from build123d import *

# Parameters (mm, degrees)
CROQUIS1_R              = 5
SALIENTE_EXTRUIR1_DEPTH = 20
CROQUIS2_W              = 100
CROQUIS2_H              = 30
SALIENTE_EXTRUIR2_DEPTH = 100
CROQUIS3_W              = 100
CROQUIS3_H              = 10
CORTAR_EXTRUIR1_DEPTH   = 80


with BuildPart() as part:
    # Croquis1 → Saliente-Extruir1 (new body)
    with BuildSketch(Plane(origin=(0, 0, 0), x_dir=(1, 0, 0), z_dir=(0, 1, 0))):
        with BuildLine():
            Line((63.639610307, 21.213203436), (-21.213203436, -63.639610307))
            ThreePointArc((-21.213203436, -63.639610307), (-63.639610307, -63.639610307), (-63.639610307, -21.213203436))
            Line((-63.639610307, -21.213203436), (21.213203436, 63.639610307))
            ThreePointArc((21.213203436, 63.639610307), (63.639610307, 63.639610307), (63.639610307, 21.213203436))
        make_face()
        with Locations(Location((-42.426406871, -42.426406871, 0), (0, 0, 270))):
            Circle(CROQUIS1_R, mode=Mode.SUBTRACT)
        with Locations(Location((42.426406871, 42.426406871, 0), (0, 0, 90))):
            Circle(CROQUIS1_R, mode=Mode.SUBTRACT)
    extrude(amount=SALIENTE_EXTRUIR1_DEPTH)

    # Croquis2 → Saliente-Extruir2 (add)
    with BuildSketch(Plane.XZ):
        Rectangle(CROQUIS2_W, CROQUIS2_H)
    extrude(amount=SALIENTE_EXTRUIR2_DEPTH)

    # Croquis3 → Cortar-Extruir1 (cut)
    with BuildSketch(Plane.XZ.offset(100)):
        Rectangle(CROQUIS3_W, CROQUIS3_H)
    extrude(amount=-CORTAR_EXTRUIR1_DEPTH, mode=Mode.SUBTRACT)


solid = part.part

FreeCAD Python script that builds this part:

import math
import FreeCAD as App
import Part
import Sketcher

V = App.Vector
Q = App.Units.Quantity

doc = App.newDocument("Part")
body = doc.addObject("PartDesign::Body", "Body")

# Sketch on XZ plane
sketch1 = body.newObject("Sketcher::SketchObject", "Sketch")
sketch1.AttachmentSupport = (doc.getObject("XZ_Plane"), [""])
sketch1.MapMode = "FlatFace"
sketch1.addGeometry([
    Part.LineSegment(V(-21, 64, 0), V(64, -21, 0)),  # 0
    Part.ArcOfCircle(Part.Circle(V(42, -42, 0), V(0, 0, 1), 30), math.radians(-135), math.radians(45)),  # 1
    Part.LineSegment(V(21, -64, 0), V(-64, 21, 0)),  # 2
    Part.ArcOfCircle(Part.Circle(V(-42, 42, 0), V(0, 0, 1), 30), math.radians(45), math.radians(225)),  # 3
    Part.Circle(V(-42, 42, 0), V(0, 0, 1), 5),  # 4
    Part.Circle(V(42, -42, 0), V(0, 0, 1), 5),  # 5
], False)
sketch1.addConstraint([
    Sketcher.Constraint("Tangent", 0, 2, 1, 2),
    Sketcher.Constraint("Tangent", 1, 1, 2, 1),
    Sketcher.Constraint("Tangent", 2, 2, 3, 2),
    Sketcher.Constraint("Tangent", 3, 1, 0, 1),
    Sketcher.Constraint("Coincident", 4, 3, 3, 3),
    Sketcher.Constraint("Coincident", 5, 3, 1, 3),
    Sketcher.Constraint("Equal", 1, 3),
    Sketcher.Constraint("Equal", 4, 5),
    Sketcher.Constraint("Symmetric", 1, 3, 3, 3, -1, 1),
    Sketcher.Constraint("Diameter", 4, 10.0),
    Sketcher.Constraint("Radius", 1, 30.0),
    Sketcher.Constraint("Angle", 0, Q("-45 deg")),
    Sketcher.Constraint("Distance", 0, 120.0),
])
pad1 = body.newObject("PartDesign::Pad", "Pad")
pad1.Profile = sketch1
pad1.Length = 20
pad1.Reversed = True

# Sketch on XZ plane
sketch2 = body.newObject("Sketcher::SketchObject", "Sketch001")
sketch2.AttachmentSupport = (doc.getObject("XZ_Plane"), [""])
sketch2.MapMode = "FlatFace"
sketch2.addGeometry([
    Part.LineSegment(V(-50, 15, 0), V(-50, -15, 0)),
    Part.LineSegment(V(-50, -15, 0), V(50, -15, 0)),
    Part.LineSegment(V(50, -15, 0), V(50, 15, 0)),
    Part.LineSegment(V(50, 15, 0), V(-50, 15, 0)),
], False)
sketch2.addConstraint([
    Sketcher.Constraint("Coincident", 0, 2, 1, 1),
    Sketcher.Constraint("Coincident", 1, 2, 2, 1),
    Sketcher.Constraint("Coincident", 2, 2, 3, 1),
    Sketcher.Constraint("Coincident", 3, 2, 0, 1),
    Sketcher.Constraint("Vertical", 0),
    Sketcher.Constraint("Horizontal", 1),
    Sketcher.Constraint("Vertical", 2),
    Sketcher.Constraint("Horizontal", 3),
    Sketcher.Constraint("Symmetric", 0, 2, 2, 2, -1, 1),
    Sketcher.Constraint("DistanceX", 1, 1, 1, 2, 100.0),
    Sketcher.Constraint("DistanceY", 0, 2, 0, 1, 30.0),
])
pad2 = body.newObject("PartDesign::Pad", "Pad001")
pad2.Profile = sketch2
pad2.Length = 100

# Sketch on XZ plane
sketch3 = body.newObject("Sketcher::SketchObject", "Sketch002")
sketch3.AttachmentSupport = (doc.getObject("XZ_Plane"), [""])
sketch3.MapMode = "FlatFace"
sketch3.AttachmentOffset = App.Placement(V(0, 0, 100), App.Rotation())
sketch3.addGeometry([
    Part.LineSegment(V(-50, 5, 0), V(-50, -5, 0)),
    Part.LineSegment(V(-50, -5, 0), V(50, -5, 0)),
    Part.LineSegment(V(50, -5, 0), V(50, 5, 0)),
    Part.LineSegment(V(50, 5, 0), V(-50, 5, 0)),
], False)
sketch3.addConstraint([
    Sketcher.Constraint("Coincident", 0, 2, 1, 1),
    Sketcher.Constraint("Coincident", 1, 2, 2, 1),
    Sketcher.Constraint("Coincident", 2, 2, 3, 1),
    Sketcher.Constraint("Coincident", 3, 2, 0, 1),
    Sketcher.Constraint("Vertical", 0),
    Sketcher.Constraint("Horizontal", 1),
    Sketcher.Constraint("Vertical", 2),
    Sketcher.Constraint("Horizontal", 3),
    Sketcher.Constraint("Symmetric", 0, 2, 2, 2, -1, 1),
    Sketcher.Constraint("DistanceX", 1, 1, 1, 2, 100.0),
    Sketcher.Constraint("DistanceY", 0, 2, 0, 1, 10.0),
])
pocket1 = body.newObject("PartDesign::Pocket", "Pocket")
pocket1.Profile = sketch3
pocket1.Length = 80

doc.recompute()
